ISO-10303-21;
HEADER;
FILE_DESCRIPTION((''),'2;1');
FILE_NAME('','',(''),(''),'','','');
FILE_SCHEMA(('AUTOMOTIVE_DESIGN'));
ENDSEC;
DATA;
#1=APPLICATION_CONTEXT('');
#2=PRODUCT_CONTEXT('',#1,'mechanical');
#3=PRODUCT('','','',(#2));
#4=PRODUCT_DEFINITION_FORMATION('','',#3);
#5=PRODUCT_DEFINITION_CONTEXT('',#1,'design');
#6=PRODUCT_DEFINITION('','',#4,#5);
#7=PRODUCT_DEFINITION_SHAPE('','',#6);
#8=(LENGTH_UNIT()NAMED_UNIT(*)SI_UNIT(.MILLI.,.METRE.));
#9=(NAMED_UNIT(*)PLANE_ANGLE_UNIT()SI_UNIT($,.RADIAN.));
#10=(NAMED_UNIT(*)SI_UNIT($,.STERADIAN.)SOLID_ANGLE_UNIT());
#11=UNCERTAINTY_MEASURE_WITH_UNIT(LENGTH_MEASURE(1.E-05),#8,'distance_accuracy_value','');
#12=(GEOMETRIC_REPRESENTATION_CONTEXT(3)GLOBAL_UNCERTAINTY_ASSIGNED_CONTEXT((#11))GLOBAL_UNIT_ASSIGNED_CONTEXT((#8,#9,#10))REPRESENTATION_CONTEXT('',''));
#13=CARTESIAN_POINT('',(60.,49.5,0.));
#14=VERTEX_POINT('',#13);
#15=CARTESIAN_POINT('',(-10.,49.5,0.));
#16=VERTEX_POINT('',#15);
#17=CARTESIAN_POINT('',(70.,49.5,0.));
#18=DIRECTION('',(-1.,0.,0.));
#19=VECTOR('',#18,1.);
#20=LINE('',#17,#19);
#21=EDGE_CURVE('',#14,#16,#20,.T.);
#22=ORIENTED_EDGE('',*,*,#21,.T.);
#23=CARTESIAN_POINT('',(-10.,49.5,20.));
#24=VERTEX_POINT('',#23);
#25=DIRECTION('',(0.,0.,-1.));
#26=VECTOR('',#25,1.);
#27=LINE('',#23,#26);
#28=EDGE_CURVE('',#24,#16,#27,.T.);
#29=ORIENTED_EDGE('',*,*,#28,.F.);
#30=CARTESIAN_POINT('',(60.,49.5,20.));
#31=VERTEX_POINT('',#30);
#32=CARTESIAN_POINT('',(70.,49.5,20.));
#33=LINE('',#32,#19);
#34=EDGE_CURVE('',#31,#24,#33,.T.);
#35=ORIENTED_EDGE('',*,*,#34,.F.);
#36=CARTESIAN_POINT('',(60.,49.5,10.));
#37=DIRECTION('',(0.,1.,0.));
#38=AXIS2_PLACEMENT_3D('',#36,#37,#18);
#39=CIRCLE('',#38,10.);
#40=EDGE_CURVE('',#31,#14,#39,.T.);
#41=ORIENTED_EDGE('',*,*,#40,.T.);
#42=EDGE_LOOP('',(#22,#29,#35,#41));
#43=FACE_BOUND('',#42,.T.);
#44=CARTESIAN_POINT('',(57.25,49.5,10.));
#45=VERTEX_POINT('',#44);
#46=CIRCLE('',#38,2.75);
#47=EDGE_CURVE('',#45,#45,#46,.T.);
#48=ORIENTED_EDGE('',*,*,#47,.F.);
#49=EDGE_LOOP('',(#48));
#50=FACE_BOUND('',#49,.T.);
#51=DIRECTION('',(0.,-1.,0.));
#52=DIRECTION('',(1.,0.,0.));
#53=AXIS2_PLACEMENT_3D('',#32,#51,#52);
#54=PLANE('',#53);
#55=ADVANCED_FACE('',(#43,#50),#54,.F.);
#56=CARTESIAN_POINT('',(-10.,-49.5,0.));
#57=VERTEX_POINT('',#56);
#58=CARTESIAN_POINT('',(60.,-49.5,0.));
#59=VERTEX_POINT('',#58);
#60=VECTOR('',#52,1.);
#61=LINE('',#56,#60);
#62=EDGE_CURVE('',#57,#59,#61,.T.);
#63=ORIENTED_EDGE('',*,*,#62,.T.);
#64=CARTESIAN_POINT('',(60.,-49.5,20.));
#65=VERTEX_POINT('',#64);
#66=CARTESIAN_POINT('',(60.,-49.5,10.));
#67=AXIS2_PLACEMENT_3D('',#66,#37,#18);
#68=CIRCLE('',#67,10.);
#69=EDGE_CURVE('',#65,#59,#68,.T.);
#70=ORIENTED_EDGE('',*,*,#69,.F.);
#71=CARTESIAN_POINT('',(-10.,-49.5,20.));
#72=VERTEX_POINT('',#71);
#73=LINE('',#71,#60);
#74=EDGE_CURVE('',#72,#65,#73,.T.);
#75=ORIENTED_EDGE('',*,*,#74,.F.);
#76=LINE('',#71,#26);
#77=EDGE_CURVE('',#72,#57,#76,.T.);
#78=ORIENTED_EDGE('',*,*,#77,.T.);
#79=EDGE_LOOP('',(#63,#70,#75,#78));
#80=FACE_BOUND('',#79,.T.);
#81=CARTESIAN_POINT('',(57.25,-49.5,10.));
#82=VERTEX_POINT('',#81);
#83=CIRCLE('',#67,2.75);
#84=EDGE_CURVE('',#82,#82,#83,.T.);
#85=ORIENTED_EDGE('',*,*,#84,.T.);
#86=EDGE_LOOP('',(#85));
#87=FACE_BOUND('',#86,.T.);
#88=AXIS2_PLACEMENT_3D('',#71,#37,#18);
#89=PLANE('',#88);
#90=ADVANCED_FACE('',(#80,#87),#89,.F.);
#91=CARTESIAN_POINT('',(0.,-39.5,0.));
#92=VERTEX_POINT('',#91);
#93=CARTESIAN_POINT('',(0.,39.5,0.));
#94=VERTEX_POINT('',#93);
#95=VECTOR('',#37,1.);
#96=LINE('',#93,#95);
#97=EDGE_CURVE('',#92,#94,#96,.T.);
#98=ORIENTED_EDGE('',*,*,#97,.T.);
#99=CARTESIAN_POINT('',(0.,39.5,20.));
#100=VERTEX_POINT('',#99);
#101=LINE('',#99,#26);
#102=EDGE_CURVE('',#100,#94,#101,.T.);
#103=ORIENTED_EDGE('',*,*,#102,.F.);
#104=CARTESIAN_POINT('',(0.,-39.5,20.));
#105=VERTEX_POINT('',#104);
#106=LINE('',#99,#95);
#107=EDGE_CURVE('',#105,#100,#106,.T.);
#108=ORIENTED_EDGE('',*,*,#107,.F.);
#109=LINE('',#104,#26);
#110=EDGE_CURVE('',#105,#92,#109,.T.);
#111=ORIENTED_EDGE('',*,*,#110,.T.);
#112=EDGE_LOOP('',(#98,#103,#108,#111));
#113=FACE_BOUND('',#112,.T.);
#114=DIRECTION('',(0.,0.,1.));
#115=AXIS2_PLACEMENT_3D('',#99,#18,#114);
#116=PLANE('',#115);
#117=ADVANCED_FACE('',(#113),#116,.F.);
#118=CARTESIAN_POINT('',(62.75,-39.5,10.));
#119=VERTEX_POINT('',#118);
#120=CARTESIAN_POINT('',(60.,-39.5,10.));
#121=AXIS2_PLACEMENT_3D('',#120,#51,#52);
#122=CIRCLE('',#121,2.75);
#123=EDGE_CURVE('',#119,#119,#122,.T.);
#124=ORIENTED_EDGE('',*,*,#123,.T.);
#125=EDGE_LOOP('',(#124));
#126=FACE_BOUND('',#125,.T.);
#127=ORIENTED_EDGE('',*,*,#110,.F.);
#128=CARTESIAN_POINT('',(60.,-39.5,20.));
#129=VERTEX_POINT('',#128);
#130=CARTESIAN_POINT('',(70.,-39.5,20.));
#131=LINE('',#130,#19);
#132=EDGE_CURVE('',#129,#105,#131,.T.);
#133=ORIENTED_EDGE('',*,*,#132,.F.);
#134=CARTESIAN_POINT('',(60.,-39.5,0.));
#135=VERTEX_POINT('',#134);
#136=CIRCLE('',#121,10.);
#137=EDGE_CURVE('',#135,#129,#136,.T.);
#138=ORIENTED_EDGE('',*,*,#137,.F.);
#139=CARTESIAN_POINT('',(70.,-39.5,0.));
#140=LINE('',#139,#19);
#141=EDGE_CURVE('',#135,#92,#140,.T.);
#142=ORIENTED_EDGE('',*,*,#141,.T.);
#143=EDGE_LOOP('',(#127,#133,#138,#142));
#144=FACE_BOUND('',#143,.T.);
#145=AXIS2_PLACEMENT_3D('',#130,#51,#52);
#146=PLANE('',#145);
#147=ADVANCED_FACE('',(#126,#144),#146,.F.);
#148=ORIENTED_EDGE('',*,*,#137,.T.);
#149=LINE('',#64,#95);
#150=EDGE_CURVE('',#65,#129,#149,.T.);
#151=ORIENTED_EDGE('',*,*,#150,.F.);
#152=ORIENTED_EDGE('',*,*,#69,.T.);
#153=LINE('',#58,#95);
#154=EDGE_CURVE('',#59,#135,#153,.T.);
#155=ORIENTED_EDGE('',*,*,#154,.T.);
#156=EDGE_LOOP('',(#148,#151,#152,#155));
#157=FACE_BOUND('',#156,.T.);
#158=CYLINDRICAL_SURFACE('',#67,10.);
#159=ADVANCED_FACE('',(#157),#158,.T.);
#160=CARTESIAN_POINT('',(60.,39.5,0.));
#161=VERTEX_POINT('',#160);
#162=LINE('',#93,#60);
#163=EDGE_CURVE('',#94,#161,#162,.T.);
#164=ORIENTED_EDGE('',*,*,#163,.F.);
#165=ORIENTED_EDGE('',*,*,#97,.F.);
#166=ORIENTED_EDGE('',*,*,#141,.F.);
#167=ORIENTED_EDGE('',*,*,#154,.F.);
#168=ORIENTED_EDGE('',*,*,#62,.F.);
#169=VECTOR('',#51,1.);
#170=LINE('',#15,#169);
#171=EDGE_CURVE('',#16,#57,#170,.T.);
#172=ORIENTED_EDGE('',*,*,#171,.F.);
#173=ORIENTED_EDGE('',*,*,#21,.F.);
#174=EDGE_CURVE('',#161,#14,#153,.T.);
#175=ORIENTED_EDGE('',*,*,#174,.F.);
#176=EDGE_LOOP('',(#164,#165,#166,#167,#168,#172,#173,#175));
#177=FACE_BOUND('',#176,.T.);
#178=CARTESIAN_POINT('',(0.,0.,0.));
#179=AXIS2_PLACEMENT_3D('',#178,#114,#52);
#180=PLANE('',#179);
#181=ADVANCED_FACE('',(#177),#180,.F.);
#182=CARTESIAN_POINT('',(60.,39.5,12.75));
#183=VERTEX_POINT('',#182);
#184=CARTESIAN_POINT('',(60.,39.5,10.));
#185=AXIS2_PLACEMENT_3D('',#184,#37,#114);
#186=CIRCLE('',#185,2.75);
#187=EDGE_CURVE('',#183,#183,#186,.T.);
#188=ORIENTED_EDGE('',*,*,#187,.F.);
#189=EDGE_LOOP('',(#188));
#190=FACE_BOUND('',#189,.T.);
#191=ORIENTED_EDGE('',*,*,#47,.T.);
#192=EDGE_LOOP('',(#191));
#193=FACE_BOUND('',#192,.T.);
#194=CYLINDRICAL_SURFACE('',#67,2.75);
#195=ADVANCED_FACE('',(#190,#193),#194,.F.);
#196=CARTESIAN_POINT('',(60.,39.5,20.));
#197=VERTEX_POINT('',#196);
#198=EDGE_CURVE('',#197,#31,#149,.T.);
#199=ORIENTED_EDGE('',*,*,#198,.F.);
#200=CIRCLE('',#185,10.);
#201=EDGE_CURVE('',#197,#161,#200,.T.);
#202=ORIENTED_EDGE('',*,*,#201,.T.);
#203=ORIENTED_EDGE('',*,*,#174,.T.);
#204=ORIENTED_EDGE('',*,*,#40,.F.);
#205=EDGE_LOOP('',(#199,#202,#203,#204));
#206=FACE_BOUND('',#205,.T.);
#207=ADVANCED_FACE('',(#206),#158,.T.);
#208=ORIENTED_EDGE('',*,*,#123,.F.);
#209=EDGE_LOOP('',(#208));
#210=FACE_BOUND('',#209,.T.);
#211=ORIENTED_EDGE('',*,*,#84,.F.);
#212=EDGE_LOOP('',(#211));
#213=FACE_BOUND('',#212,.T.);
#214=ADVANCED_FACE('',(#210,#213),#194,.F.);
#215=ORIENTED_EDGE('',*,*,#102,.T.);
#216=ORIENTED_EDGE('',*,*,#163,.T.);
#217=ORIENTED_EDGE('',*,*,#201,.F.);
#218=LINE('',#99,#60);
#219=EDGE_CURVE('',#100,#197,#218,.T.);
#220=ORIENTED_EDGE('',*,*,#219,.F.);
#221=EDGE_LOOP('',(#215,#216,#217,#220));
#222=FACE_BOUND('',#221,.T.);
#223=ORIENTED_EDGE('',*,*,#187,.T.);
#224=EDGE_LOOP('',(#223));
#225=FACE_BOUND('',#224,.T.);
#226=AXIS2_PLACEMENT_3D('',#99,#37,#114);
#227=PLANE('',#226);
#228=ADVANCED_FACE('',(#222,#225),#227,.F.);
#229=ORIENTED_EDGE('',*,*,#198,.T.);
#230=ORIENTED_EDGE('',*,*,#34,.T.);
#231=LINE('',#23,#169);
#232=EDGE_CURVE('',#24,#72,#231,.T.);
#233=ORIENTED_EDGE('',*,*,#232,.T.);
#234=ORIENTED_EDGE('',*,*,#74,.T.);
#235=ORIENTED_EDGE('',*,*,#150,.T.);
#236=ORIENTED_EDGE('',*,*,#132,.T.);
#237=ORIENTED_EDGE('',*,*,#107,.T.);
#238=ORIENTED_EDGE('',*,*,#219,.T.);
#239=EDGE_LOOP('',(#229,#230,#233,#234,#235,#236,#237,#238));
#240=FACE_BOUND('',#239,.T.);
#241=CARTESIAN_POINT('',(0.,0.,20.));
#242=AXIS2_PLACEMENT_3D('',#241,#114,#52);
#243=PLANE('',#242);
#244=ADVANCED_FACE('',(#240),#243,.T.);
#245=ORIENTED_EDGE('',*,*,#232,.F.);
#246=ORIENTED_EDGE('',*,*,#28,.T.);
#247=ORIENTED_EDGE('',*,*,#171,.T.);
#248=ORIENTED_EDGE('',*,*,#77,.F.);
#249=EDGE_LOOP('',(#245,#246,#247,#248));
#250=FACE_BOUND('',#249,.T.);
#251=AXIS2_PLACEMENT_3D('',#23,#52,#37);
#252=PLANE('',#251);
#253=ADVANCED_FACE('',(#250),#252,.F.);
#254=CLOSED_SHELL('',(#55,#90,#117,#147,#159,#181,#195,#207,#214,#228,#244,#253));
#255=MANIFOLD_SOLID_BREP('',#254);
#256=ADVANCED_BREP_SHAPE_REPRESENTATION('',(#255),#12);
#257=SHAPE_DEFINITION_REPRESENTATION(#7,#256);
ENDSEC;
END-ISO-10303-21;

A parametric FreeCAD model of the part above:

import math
import FreeCAD as App
import Part
import Sketcher

V = App.Vector
Q = App.Units.Quantity

doc = App.newDocument("Part")
body = doc.addObject("PartDesign::Body", "Body")

# Sketch on XY plane
sketch1 = body.newObject("Sketcher::SketchObject", "Sketch")
sketch1.AttachmentSupport = (doc.getObject("XY_Plane"), [""])
sketch1.MapMode = "FlatFace"
sketch1.addGeometry([
    Part.LineSegment(V(0, -40, 0), V(0, 40, 0)),  # 0
    Part.LineSegment(V(0, 40, 0), V(70, 40, 0)),  # 1
    Part.LineSegment(V(70, 40, 0), V(70, 50, 0)),  # 2
    Part.LineSegment(V(70, 50, 0), V(-10, 50, 0)),  # 3
    Part.LineSegment(V(-10, 50, 0), V(-10, -50, 0)),  # 4
    Part.LineSegment(V(-10, -50, 0), V(70, -50, 0)),  # 5
    Part.LineSegment(V(70, -50, 0), V(70, -40, 0)),  # 6
    Part.LineSegment(V(70, -40, 0), V(0, -40, 0)),  # 7
], False)
sketch1.addConstraint([
    Sketcher.Constraint("Coincident", 0, 2, 1, 1),
    Sketcher.Constraint("Coincident", 1, 2, 2, 1),
    Sketcher.Constraint("Coincident", 2, 2, 3, 1),
    Sketcher.Constraint("Coincident", 3, 2, 4, 1),
    Sketcher.Constraint("Coincident", 4, 2, 5, 1),
    Sketcher.Constraint("Coincident", 5, 2, 6, 1),
    Sketcher.Constraint("Coincident", 6, 2, 7, 1),
    Sketcher.Constraint("Coincident", 7, 2, 0, 1),
    Sketcher.Constraint("Vertical", 0),
    Sketcher.Constraint("Horizontal", 1),
    Sketcher.Constraint("Vertical", 2),
    Sketcher.Constraint("Horizontal", 3),
    Sketcher.Constraint("Vertical", 4),
    Sketcher.Constraint("Horizontal", 5),
    Sketcher.Constraint("Vertical", 6),
    Sketcher.Constraint("Horizontal", 7),
    Sketcher.Constraint("Symmetric", 0, 2, 7, 2, -1, 1),
    Sketcher.Constraint("Symmetric", 2, 2, 5, 2, -1),
    Sketcher.Constraint("DistanceX", 1, 1, 1, 2, Q("70 mm")),
    Sketcher.Constraint("DistanceX", 3, 2, 3, 1, Q("80 mm")),
    Sketcher.Constraint("DistanceY", 0, 1, 0, 2, Q("79 mm")),
    Sketcher.Constraint("DistanceY", 2, 1, 2, 2, Q("10 mm")),
])
pad1 = body.newObject("PartDesign::Pad", "Pad")
pad1.Profile = sketch1
pad1.Length = 20

# Sketch on XZ plane
sketch2 = body.newObject("Sketcher::SketchObject", "Sketch001")
sketch2.AttachmentSupport = (doc.getObject("XZ_Plane"), [""])
sketch2.MapMode = "FlatFace"
sketch2.AttachmentOffset = App.Placement(V(0, 0, -49.5), App.Rotation())
sketch2.addGeometry([
    Part.Circle(V(60, 10, 0), V(0, 0, 1), 2.8),  # 0
    Part.ArcOfCircle(Part.Circle(V(60, 10, 0), V(0, 0, 1), 10), math.radians(-90), math.radians(0)),  # 1
    Part.LineSegment(V(70, 10, 0), V(70, 0, 0)),  # 2
    Part.LineSegment(V(70, 0, 0), V(60, 0, 0)),  # 3
    Part.LineSegment(V(70, 20, 0), V(70, 10, 0)),  # 4
    Part.ArcOfCircle(Part.Circle(V(60, 10, 0), V(0, 0, 1), 10), math.radians(0), math.radians(90)),  # 5
    Part.LineSegment(V(60, 20, 0), V(70, 20, 0)),  # 6
], False)
sketch2.addConstraint([
    Sketcher.Constraint("Tangent", 1, 2, 2, 1),
    Sketcher.Constraint("Coincident", 2, 2, 3, 1),
    Sketcher.Constraint("Tangent", 3, 2, 1, 1),
    Sketcher.Constraint("Tangent", 4, 2, 5, 1),
    Sketcher.Constraint("Tangent", 5, 2, 6, 1),
    Sketcher.Constraint("Coincident", 6, 2, 4, 1),
    Sketcher.Constraint("Vertical", 2),
    Sketcher.Constraint("Horizontal", 3),
    Sketcher.Constraint("Vertical", 4),
    Sketcher.Constraint("Horizontal", 6),
    Sketcher.Constraint("Coincident", 1, 3, 0, 3),
    Sketcher.Constraint("Coincident", 5, 3, 0, 3),
    Sketcher.Constraint("Equal", 1, 5),
    Sketcher.Constraint("PointOnObject", 2, 2, -1),
    Sketcher.Constraint("Radius", 1, Q("10 mm")),
    Sketcher.Constraint("Diameter", 0, Q("5.5 mm")),
    Sketcher.Constraint("DistanceX", -1, 1, 0, 3, Q("60 mm")),
])
pocket1 = body.newObject("PartDesign::Pocket", "Pocket")
pocket1.Profile = sketch2
pocket1.Type = "ThroughAll"
pocket1.Reversed = True

doc.recompute()
